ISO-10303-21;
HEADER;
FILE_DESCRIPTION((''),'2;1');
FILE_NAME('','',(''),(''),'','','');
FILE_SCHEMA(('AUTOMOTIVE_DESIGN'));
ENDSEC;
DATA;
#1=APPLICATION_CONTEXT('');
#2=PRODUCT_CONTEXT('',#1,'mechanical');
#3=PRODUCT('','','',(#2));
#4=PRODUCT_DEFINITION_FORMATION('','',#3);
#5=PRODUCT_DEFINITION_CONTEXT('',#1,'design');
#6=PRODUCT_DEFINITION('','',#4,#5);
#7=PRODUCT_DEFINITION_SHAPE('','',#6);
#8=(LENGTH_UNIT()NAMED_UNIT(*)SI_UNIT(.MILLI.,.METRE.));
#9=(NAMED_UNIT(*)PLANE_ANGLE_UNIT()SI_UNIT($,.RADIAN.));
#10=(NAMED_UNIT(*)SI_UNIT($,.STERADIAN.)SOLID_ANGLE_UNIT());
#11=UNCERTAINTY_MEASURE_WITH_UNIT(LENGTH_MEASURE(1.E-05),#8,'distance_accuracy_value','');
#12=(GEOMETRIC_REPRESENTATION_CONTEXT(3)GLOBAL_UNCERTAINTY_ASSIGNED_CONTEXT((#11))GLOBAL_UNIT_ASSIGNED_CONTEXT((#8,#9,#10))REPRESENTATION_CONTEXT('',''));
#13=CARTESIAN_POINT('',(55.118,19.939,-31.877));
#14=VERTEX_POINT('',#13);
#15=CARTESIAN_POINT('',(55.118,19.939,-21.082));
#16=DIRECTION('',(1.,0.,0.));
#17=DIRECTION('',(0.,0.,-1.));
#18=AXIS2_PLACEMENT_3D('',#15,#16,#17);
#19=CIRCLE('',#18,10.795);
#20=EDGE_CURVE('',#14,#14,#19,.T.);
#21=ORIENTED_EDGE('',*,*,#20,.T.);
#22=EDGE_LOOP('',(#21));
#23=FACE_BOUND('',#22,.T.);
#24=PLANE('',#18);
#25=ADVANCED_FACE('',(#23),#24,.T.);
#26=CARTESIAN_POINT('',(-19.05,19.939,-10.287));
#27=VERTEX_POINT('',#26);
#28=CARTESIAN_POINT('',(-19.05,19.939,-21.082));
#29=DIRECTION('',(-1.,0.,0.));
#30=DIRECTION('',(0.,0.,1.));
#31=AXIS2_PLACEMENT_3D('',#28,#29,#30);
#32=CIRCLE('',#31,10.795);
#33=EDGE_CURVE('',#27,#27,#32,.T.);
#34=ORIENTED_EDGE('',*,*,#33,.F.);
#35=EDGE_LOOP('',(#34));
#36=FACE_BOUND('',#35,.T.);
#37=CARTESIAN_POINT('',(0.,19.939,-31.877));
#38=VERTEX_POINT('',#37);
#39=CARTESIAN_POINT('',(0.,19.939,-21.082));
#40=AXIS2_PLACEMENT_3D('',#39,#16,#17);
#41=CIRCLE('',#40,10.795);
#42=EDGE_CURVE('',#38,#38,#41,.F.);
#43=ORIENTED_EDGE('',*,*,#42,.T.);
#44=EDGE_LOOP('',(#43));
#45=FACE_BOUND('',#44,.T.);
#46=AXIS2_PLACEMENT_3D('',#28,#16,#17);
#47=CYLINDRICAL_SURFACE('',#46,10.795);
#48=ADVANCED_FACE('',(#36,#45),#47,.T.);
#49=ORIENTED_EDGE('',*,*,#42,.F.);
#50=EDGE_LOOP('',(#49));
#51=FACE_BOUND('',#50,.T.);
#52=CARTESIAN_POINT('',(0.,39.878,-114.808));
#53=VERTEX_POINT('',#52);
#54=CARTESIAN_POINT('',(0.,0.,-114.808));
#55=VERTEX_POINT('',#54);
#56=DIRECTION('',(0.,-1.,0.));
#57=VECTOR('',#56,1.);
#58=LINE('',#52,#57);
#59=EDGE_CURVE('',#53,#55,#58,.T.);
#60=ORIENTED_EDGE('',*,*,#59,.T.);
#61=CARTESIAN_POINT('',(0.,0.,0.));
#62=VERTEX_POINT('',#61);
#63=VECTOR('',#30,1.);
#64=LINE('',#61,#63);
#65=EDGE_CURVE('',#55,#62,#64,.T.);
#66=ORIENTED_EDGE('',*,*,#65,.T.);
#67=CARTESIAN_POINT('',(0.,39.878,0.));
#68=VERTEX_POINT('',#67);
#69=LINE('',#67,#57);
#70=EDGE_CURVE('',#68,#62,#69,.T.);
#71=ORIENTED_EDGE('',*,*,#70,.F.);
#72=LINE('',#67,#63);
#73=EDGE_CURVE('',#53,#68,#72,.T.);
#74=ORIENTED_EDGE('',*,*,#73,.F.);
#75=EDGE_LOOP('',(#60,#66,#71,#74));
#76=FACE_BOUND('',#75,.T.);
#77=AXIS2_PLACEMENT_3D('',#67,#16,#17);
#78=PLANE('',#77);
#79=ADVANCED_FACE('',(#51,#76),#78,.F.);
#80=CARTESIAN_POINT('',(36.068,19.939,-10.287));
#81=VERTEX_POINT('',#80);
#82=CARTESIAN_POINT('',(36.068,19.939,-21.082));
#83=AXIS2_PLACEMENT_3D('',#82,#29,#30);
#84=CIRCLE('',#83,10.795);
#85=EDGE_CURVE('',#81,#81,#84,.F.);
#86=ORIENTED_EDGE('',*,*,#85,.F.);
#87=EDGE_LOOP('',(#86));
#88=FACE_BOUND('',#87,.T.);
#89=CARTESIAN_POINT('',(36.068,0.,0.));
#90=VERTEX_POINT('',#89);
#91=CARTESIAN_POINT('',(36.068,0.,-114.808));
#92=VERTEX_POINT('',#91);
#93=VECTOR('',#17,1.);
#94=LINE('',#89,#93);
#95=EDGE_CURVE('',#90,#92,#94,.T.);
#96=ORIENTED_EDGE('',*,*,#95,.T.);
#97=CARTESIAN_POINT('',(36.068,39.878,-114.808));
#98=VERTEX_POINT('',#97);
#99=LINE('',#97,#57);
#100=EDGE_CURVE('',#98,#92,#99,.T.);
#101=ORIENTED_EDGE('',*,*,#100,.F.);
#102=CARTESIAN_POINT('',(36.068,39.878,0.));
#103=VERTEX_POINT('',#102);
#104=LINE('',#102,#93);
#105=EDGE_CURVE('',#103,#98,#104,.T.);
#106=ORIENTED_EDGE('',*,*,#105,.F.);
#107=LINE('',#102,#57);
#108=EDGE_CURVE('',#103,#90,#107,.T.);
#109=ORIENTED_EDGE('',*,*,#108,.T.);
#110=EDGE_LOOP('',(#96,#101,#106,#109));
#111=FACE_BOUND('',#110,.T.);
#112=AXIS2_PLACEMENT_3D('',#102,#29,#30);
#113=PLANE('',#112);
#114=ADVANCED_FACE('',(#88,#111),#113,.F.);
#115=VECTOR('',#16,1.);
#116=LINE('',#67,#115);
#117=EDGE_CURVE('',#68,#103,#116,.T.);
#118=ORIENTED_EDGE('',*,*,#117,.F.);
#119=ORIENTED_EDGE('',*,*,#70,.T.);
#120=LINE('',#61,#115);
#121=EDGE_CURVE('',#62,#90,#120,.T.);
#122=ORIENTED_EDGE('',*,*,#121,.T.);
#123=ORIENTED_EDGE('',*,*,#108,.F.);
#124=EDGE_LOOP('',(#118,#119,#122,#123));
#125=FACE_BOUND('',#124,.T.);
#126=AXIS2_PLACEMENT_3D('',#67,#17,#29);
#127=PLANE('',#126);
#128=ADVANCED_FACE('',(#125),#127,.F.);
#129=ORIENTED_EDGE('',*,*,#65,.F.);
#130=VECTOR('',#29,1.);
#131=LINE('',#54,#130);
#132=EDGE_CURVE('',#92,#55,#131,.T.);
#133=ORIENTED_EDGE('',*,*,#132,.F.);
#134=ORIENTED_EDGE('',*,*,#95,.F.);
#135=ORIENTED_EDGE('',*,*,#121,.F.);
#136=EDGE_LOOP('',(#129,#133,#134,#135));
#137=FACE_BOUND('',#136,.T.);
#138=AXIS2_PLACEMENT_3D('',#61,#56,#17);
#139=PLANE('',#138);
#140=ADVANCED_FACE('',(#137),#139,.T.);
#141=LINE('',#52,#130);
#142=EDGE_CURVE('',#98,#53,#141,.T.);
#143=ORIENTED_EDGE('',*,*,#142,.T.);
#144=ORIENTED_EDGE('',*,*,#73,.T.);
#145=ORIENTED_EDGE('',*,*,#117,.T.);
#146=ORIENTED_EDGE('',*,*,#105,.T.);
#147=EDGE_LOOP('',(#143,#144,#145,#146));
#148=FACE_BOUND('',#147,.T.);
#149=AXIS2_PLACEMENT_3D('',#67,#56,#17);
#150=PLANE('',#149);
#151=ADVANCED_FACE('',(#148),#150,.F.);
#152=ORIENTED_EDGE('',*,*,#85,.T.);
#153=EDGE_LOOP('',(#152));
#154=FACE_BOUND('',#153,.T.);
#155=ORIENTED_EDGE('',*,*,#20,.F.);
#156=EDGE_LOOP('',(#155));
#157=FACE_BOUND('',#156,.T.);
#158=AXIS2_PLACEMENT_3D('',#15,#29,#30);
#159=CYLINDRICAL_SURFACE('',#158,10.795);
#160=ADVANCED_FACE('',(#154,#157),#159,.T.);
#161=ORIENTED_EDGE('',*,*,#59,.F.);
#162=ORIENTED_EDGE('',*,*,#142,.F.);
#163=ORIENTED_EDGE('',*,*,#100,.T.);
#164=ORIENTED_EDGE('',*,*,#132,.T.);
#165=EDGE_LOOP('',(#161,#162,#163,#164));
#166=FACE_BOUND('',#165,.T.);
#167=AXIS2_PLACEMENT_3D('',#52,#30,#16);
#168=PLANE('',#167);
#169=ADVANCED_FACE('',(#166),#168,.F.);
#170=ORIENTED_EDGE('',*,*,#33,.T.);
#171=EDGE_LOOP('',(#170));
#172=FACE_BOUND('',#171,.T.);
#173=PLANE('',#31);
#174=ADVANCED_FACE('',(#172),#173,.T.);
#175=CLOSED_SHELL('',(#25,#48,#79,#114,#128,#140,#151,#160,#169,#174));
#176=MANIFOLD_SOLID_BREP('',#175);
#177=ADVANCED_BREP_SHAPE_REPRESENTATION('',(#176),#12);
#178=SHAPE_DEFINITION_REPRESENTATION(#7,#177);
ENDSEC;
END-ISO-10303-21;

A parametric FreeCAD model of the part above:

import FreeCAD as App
import Part
import Sketcher
from FreeCAD import Vector
Q = App.Units.Quantity


def add_polygon(sketch, points):
    """Adds a closed chain of lines whose ends are joined by coincident constraints."""
    first, n = sketch.GeometryCount, len(points)
    for a, b in zip(points, points[1:] + points[:1]):
        sketch.addGeometry(Part.LineSegment(App.Vector(*a, 0), App.Vector(*b, 0)), False)
    for i in range(n):
        sketch.addConstraint(Sketcher.Constraint("Coincident", first + i, 2, first + (i + 1) % n, 1))

doc = App.newDocument("Part")
params = doc.addObject("Spreadsheet::Sheet", "Params")
for row, (alias, value) in enumerate([
    ("sketch1_width", "1.42 in"),
    ("sketch1_height", "4.52 in"),
    ("pad1_length", "1.57 in"),
    ("sketch2_diameter", "0.85 in"),
    ("pad2_length", "0.75 in"),
    ("sketch3_diameter", "0.85 in"),
    ("pad3_length", "0.75 in"),
], start=1):
    params.set(f"A{row}", alias)
    params.set(f"B{row}", "=" + value)
    params.setAlias(f"B{row}", alias)

body = doc.addObject("PartDesign::Body", "Body")

# Sketch on XZ plane
sketch1 = doc.addObject("Sketcher::SketchObject", "Sketch")
body.addObject(sketch1)
sketch1.AttachmentSupport = (doc.XZ_Plane, [""])
sketch1.MapMode = "FlatFace"
add_polygon(sketch1, [(0, -115), (0, 0), (36, 0), (36, -115)])  # lines 0-3
sketch1.addConstraint([
    Sketcher.Constraint("Vertical", 0),
    Sketcher.Constraint("Horizontal", 1),
    Sketcher.Constraint("Vertical", 2),
    Sketcher.Constraint("Horizontal", 3),
    Sketcher.Constraint("Coincident", 0, 2, -1, 1),
    Sketcher.Constraint("DistanceX", 1, 1, 1, 2, Q("1.42 in")),
    Sketcher.Constraint("DistanceY", 0, 1, 0, 2, Q("4.52 in")),
])
sketch1.setExpression("Constraints[9]", "Params.sketch1_width")
sketch1.setExpression("Constraints[10]", "Params.sketch1_height")
pad1 = doc.addObject("PartDesign::Pad", "Pad")
body.addObject(pad1)
pad1.Profile = sketch1
pad1.setExpression("Length", "Params.pad1_length")
pad1.Reversed = True

# Sketch on YZ plane
sketch2 = doc.addObject("Sketcher::SketchObject", "Sketch001")
body.addObject(sketch2)
sketch2.AttachmentSupport = (doc.YZ_Plane, [""])
sketch2.MapMode = "FlatFace"
sketch2.addGeometry(Part.Circle(Vector(20, -21, 0), Vector(0, 0, 1), 11), False)
sketch2.addConstraint([
    Sketcher.Constraint("Diameter", 0, Q("0.85 in")),
    Sketcher.Constraint("DistanceY", 0, 3, -1, 1, Q("0.83 in")),
    Sketcher.Constraint("DistanceX", -1, 1, 0, 3, Q("0.785 in")),
])
sketch2.setExpression("Constraints[0]", "Params.sketch2_diameter")
pad2 = doc.addObject("PartDesign::Pad", "Pad001")
body.addObject(pad2)
pad2.Profile = sketch2
pad2.setExpression("Length", "Params.pad2_length")
pad2.Reversed = True

# Sketch on YZ plane
sketch3 = doc.addObject("Sketcher::SketchObject", "Sketch002")
body.addObject(sketch3)
sketch3.AttachmentSupport = (doc.YZ_Plane, [""])
sketch3.MapMode = "FlatFace"
sketch3.AttachmentOffset = App.Placement(Vector(0, 0, 1.42 * 25.4), App.Rotation())
sketch3.addGeometry(Part.Circle(Vector(20, -21, 0), Vector(0, 0, 1), 11), False)
sketch3.addConstraint([
    Sketcher.Constraint("Diameter", 0, Q("0.85 in")),
    Sketcher.Constraint("DistanceY", 0, 3, -1, 1, Q("0.83 in")),
    Sketcher.Constraint("DistanceX", -1, 1, 0, 3, Q("0.785 in")),
])
sketch3.setExpression("Constraints[0]", "Params.sketch3_diameter")
pad3 = doc.addObject("PartDesign::Pad", "Pad002")
body.addObject(pad3)
pad3.Profile = sketch3
pad3.setExpression("Length", "Params.pad3_length")

doc.recompute()
